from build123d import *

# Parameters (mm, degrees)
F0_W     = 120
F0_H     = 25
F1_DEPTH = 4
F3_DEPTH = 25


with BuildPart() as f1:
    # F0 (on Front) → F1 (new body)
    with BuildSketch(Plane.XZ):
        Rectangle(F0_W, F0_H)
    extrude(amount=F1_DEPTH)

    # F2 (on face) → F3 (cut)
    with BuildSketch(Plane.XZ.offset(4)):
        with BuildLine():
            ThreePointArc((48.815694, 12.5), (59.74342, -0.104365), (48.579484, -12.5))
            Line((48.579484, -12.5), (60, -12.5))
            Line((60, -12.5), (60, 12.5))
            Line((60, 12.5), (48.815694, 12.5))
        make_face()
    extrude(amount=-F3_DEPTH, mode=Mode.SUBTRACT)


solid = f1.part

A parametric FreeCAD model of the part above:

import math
import FreeCAD as App
import Part
import Sketcher

V = App.Vector
Q = App.Units.Quantity


def add_polygon(sketch, points):
    """Adds a closed chain of lines whose ends are joined by coincident constraints."""
    first, n = sketch.GeometryCount, len(points)
    for a, b in zip(points, points[1:] + points[:1]):
        sketch.addGeometry(Part.LineSegment(App.Vector(*a, 0), App.Vector(*b, 0)), False)
    for i in range(n):
        sketch.addConstraint(Sketcher.Constraint("Coincident", first + i, 2, first + (i + 1) % n, 1))

doc = App.newDocument("Part")
body = doc.addObject("PartDesign::Body", "Body")

# Sketch on XZ plane
sketch1 = body.newObject("Sketcher::SketchObject", "Sketch")
sketch1.AttachmentSupport = (doc.getObject("XZ_Plane"), [""])
sketch1.MapMode = "FlatFace"
add_polygon(sketch1, [(-60, 12), (-60, -12), (60, -12), (60, 12)])  # lines 0-3
sketch1.addConstraint([
    Sketcher.Constraint("Vertical", 0),
    Sketcher.Constraint("Horizontal", 1),
    Sketcher.Constraint("Vertical", 2),
    Sketcher.Constraint("Horizontal", 3),
    Sketcher.Constraint("Symmetric", 0, 2, 2, 2, -1, 1),
    Sketcher.Constraint("DistanceX", 1, 1, 1, 2, Q("120 mm")),
    Sketcher.Constraint("DistanceY", 0, 2, 0, 1, Q("25 mm")),
])
pad1 = body.newObject("PartDesign::Pad", "Pad")
pad1.Profile = sketch1
pad1.Length = 4

# Sketch on XZ plane
sketch2 = body.newObject("Sketcher::SketchObject", "Sketch001")
sketch2.AttachmentSupport = (doc.getObject("XZ_Plane"), [""])
sketch2.MapMode = "FlatFace"
sketch2.AttachmentOffset = App.Placement(V(0, 0, 4), App.Rotation())
sketch2.addGeometry([
    Part.ArcOfCircle(Part.Circle(V(47, 0, 0), V(0, 0, 1), 13), math.radians(-83), math.radians(82)),
    Part.LineSegment(V(49, -12, 0), V(60, -12, 0)),
    Part.LineSegment(V(60, -12, 0), V(60, 12, 0)),
    Part.LineSegment(V(60, 12, 0), V(49, 12, 0)),
], False)
sketch2.addConstraint([
    Sketcher.Constraint("Coincident", 0, 1, 1, 1),
    Sketcher.Constraint("Coincident", 1, 2, 2, 1),
    Sketcher.Constraint("Coincident", 2, 2, 3, 1),
    Sketcher.Constraint("Coincident", 3, 2, 0, 2),
    Sketcher.Constraint("Horizontal", 1),
    Sketcher.Constraint("Vertical", 2),
    Sketcher.Constraint("Horizontal", 3),
    Sketcher.Constraint("DistanceY", 2, 1, 2, 2, Q("25 mm")),
    Sketcher.Constraint("DistanceX", -1, 1, 1, 2, Q("60 mm")),
    Sketcher.Constraint("DistanceY", 0, 1, -1, 1, Q("12.5 mm")),
    Sketcher.Constraint("Radius", 0, Q("12.596282 mm")),
    Sketcher.Constraint("DistanceX", -1, 1, 0, 3, Q("47.1477 mm")),
    Sketcher.Constraint("DistanceX", 1, 1, 1, 2, Q("11.420516 mm")),
])
pocket1 = body.newObject("PartDesign::Pocket", "Pocket")
pocket1.Profile = sketch2
pocket1.Length = 25

doc.recompute()
